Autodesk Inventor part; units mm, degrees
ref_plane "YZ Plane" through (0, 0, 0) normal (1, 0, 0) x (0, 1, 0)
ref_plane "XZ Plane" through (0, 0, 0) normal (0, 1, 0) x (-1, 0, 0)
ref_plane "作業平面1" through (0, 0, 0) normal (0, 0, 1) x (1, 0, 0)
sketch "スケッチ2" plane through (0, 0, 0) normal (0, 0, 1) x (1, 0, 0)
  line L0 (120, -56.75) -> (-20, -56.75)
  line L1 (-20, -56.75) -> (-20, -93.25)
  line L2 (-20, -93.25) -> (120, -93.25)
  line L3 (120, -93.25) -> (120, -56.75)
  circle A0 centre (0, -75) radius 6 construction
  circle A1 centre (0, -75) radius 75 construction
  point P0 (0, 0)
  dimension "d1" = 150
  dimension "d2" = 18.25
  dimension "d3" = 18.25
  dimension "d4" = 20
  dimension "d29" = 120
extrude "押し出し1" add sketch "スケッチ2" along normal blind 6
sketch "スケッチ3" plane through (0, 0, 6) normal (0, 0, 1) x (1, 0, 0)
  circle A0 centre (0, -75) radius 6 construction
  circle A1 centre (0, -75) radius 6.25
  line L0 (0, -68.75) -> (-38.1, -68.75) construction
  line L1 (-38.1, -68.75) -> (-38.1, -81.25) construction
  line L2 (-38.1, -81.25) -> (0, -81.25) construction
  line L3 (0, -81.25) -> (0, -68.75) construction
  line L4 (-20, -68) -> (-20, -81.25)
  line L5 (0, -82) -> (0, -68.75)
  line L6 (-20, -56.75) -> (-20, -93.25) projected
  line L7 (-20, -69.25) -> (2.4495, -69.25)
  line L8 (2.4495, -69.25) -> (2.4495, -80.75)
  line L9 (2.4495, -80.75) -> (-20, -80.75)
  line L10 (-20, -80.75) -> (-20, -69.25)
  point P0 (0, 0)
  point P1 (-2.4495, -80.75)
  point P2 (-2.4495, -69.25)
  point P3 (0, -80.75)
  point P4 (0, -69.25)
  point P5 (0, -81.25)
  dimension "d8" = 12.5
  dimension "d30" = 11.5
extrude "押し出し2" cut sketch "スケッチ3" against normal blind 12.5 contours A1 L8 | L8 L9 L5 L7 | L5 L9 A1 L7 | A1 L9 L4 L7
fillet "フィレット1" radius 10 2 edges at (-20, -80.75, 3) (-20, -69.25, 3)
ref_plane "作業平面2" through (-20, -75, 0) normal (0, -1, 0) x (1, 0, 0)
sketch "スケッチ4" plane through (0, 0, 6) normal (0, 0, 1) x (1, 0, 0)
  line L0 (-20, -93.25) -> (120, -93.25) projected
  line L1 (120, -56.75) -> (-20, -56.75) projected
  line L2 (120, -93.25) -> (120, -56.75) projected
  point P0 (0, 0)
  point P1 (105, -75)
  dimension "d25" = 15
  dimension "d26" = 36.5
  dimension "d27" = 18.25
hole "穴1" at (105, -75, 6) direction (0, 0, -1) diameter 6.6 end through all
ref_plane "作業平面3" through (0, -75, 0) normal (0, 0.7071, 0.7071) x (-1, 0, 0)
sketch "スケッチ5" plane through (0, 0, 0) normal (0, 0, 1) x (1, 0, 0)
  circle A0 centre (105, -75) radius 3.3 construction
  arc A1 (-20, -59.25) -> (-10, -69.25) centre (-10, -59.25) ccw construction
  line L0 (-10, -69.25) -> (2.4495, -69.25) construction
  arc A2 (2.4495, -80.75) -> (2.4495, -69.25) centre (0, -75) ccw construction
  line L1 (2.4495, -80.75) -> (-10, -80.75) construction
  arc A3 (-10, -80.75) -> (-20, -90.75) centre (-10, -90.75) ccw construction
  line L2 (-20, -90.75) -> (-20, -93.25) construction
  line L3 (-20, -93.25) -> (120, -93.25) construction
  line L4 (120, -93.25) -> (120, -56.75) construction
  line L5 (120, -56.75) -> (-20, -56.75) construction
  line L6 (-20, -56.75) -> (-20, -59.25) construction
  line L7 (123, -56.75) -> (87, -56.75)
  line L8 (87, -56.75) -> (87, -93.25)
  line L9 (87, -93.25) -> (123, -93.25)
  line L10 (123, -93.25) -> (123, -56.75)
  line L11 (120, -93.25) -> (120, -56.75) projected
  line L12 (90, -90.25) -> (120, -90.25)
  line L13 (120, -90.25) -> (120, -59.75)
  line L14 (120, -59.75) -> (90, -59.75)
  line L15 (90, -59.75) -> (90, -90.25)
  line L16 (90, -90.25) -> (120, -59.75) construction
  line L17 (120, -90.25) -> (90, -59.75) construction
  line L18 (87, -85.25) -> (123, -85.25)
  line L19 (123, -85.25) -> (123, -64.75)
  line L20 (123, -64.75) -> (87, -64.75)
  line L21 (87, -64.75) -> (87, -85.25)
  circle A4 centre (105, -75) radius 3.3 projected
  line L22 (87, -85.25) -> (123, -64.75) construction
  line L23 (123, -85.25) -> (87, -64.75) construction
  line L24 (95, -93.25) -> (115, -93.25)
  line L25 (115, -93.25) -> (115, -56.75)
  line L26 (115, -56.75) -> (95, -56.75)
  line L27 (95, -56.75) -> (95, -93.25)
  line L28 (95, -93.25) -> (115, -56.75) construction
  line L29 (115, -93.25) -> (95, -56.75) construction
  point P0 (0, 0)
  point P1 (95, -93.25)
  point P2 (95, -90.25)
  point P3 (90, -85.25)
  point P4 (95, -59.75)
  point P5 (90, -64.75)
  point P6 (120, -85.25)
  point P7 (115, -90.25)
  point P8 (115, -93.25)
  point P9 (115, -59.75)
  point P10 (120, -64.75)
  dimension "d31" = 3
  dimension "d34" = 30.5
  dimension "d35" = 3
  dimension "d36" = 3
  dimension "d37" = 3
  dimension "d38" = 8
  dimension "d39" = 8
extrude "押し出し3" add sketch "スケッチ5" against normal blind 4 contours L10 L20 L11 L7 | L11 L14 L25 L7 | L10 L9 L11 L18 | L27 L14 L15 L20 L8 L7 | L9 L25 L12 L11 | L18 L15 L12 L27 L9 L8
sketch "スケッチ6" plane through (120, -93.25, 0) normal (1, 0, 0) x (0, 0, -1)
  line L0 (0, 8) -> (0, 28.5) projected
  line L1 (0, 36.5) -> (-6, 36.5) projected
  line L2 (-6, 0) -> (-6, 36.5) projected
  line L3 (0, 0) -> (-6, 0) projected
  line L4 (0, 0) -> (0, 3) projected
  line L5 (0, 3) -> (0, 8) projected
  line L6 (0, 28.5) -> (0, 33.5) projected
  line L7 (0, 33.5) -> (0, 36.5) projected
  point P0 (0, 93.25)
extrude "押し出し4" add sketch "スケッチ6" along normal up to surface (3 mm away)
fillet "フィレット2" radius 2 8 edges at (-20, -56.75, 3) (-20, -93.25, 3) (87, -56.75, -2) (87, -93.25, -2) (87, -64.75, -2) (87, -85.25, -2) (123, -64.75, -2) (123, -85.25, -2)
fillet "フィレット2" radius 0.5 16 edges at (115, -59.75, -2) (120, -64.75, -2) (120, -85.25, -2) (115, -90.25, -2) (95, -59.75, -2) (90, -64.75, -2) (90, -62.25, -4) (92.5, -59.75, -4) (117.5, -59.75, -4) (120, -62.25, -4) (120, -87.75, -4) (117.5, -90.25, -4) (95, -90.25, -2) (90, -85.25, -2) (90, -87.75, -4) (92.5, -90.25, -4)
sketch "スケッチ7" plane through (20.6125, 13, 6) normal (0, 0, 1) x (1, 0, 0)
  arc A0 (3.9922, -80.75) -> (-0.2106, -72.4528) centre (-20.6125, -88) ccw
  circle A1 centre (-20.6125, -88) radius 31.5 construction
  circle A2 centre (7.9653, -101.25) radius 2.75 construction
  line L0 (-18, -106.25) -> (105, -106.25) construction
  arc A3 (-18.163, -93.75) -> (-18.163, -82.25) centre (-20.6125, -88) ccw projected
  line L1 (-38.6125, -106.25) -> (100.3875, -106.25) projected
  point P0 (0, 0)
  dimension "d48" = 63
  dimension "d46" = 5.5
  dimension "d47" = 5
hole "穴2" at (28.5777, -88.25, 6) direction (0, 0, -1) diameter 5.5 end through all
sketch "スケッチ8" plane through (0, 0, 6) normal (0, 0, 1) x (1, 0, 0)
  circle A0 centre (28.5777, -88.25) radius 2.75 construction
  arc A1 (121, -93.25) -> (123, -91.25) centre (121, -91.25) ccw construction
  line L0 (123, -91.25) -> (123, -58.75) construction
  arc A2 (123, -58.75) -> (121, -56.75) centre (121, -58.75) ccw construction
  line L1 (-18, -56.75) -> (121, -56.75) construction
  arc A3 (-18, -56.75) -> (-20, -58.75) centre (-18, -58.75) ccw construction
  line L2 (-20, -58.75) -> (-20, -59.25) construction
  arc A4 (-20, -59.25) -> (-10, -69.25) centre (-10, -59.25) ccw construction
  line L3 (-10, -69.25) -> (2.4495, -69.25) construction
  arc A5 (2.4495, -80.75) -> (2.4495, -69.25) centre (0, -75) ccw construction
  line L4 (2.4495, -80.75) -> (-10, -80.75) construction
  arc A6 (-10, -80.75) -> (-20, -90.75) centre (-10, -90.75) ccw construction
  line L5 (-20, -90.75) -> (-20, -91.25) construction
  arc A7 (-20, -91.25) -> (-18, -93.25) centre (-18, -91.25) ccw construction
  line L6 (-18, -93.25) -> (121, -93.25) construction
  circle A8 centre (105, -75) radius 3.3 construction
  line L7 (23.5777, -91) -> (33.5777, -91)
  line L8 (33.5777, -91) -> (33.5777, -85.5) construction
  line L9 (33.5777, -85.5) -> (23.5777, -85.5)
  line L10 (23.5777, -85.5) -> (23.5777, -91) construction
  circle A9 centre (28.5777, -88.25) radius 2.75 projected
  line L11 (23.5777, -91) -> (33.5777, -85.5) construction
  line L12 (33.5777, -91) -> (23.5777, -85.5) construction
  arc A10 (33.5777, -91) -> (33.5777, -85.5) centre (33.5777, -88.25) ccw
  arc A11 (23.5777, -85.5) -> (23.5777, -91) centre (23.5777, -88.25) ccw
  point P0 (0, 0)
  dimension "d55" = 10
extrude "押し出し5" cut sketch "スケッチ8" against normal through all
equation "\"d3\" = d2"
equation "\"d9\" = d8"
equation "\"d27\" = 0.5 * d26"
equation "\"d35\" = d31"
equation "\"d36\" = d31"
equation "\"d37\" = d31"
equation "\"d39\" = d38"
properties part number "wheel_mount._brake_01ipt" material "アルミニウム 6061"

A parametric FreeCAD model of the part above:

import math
import FreeCAD as App
import Part
import Sketcher

V = App.Vector


def edges_at(feature, points):
    """Names of the edges that pass closest to the given points."""
    edges = feature.Shape.Edges
    near = lambda p: min(range(len(edges)), key=lambda i: edges[i].distToShape(Part.Vertex(*p))[0])
    return sorted({f"Edge{near(p) + 1}" for p in points})

doc = App.newDocument("Part")
params = doc.addObject("Spreadsheet::Sheet", "Params")
for row, (alias, value) in enumerate([
    ("sketch1_height", "36.5 mm"),
    ("pad1_length", "6 mm"),
    ("sketch2_radius", "6.25 mm"),
    ("sketch2_height", "11.5 mm"),
    ("pocket1_length", "12.5 mm"),
    ("fillet_radius", "10 mm"),
    ("sketch3_diameter", "6.6 mm"),
    ("hole_diameter", "6.6 mm"),
    ("sketch4_width", "8 mm"),
    ("sketch4_width2", "3 mm"),
    ("pad2_length", "4 mm"),
    ("sketch5_height", "6 mm"),
    ("sketch5_width", "36.5 mm"),
    ("pad3_length", "3 mm"),
    ("fillet2_radius", "2 mm"),
    ("fillet3_radius", "0.5 mm"),
    ("sketch6_diameter", "5.5 mm"),
    ("hole2_diameter", "5.5 mm"),
    ("sketch7_width", "10 mm"),
    ("sketch7_radius", "2.75 mm"),
], start=1):
    params.set(f"A{row}", alias)
    params.set(f"B{row}", "=" + value)
    params.setAlias(f"B{row}", alias)

body = doc.addObject("PartDesign::Body", "Body")

# Sketch on XY plane
sketch1 = doc.addObject("Sketcher::SketchObject", "Sketch")
body.addObject(sketch1)
sketch1.AttachmentSupport = (doc.XY_Plane, [""])
sketch1.MapMode = "FlatFace"
sketch1.addGeometry(Part.LineSegment(V(120, -93.25, 0), V(120, -56.75, 0)), False)
sketch1.addGeometry(Part.LineSegment(V(120, -56.75, 0), V(-20, -56.75, 0)), False)
sketch1.addGeometry(Part.LineSegment(V(-20, -56.75, 0), V(-20, -93.25, 0)), False)
sketch1.addGeometry(Part.LineSegment(V(-20, -93.25, 0), V(120, -93.25, 0)), False)
sketch1.addConstraint(Sketcher.Constraint("Coincident", 0, 2, 1, 1))
sketch1.addConstraint(Sketcher.Constraint("Coincident", 1, 2, 2, 1))
sketch1.addConstraint(Sketcher.Constraint("Coincident", 2, 2, 3, 1))
sketch1.addConstraint(Sketcher.Constraint("Coincident", 3, 2, 0, 1))
sketch1.addConstraint(Sketcher.Constraint("Vertical", 0))
sketch1.addConstraint(Sketcher.Constraint("Horizontal", 1))
sketch1.addConstraint(Sketcher.Constraint("Vertical", 2))
sketch1.addConstraint(Sketcher.Constraint("Horizontal", 3))
sketch1.addConstraint(Sketcher.Constraint("DistanceX", -1, 1, 0, 2, 120.0))
sketch1.addConstraint(Sketcher.Constraint("DistanceX", 1, 2, -1, 1, 20.0))
sketch1.addConstraint(Sketcher.Constraint("DistanceY", 0, 1, 0, 2, 36.5))
sketch1.addConstraint(Sketcher.Constraint("DistanceY", 0, 2, -1, 1, 56.75))
sketch1.setExpression("Constraints[10]", "Params.sketch1_height")
pad1 = doc.addObject("PartDesign::Pad", "Pad")
body.addObject(pad1)
pad1.Profile = sketch1
pad1.setExpression("Length", "Params.pad1_length")

# Sketch on XY plane
sketch2 = doc.addObject("Sketcher::SketchObject", "Sketch001")
body.addObject(sketch2)
sketch2.AttachmentSupport = (doc.XY_Plane, [""])
sketch2.MapMode = "FlatFace"
sketch2.AttachmentOffset = App.Placement(V(0, 0, 6), App.Rotation())
sketch2.addGeometry(Part.ArcOfCircle(Part.Circle(V(0, -75, 0), V(0, 0, 1), 6.25), math.radians(-66.925995), math.radians(66.925995)), False)
sketch2.addGeometry(Part.LineSegment(V(2.4495, -69.25, 0), V(-20, -69.25, 0)), False)
sketch2.addGeometry(Part.LineSegment(V(-20, -69.25, 0), V(-20, -80.75, 0)), False)
sketch2.addGeometry(Part.LineSegment(V(-20, -80.75, 0), V(2.4495, -80.75, 0)), False)
sketch2.addConstraint(Sketcher.Constraint("Coincident", 0, 2, 1, 1))
sketch2.addConstraint(Sketcher.Constraint("Coincident", 1, 2, 2, 1))
sketch2.addConstraint(Sketcher.Constraint("Coincident", 2, 2, 3, 1))
sketch2.addConstraint(Sketcher.Constraint("Coincident", 3, 2, 0, 1))
sketch2.addConstraint(Sketcher.Constraint("Horizontal", 1))
sketch2.addConstraint(Sketcher.Constraint("Vertical", 2))
sketch2.addConstraint(Sketcher.Constraint("Horizontal", 3))
sketch2.addConstraint(Sketcher.Constraint("PointOnObject", 0, 3, -2))
sketch2.addConstraint(Sketcher.Constraint("Vertical", 0, 2, 3, 2))
sketch2.addConstraint(Sketcher.Constraint("Radius", 0, 6.25))
sketch2.addConstraint(Sketcher.Constraint("DistanceY", 2, 2, 2, 1, 11.5))
sketch2.addConstraint(Sketcher.Constraint("DistanceY", 0, 3, -1, 1, 75.0))
sketch2.addConstraint(Sketcher.Constraint("DistanceX", 1, 2, -1, 1, 20.0))
sketch2.setExpression("Constraints[9]", "Params.sketch2_radius")
sketch2.setExpression("Constraints[10]", "Params.sketch2_height")
pocket1 = doc.addObject("PartDesign::Pocket", "Pocket")
body.addObject(pocket1)
pocket1.Profile = sketch2
pocket1.setExpression("Length", "Params.pocket1_length")
doc.recompute()

fillet = doc.addObject("PartDesign::Fillet", "Fillet")
body.addObject(fillet)
fillet.Base = (pocket1, edges_at(pocket1, [(-20, -80.75, 3), (-20, -69.25, 3)]))
fillet.setExpression("Radius", "Params.fillet_radius")

# Sketch on XY plane
sketch3 = doc.addObject("Sketcher::SketchObject", "Sketch002")
body.addObject(sketch3)
sketch3.AttachmentSupport = (doc.XY_Plane, [""])
sketch3.MapMode = "FlatFace"
sketch3.AttachmentOffset = App.Placement(V(0, 0, 6), App.Rotation())
sketch3.addGeometry(Part.Circle(V(105, -75, 0), V(0, 0, 1), 3.3), False)
sketch3.addConstraint(Sketcher.Constraint("Diameter", 0, 6.6))
sketch3.addConstraint(Sketcher.Constraint("DistanceX", -1, 1, 0, 3, 105.0))
sketch3.addConstraint(Sketcher.Constraint("DistanceY", 0, 3, -1, 1, 75.0))
sketch3.setExpression("Constraints[0]", "Params.sketch3_diameter")
doc.recompute()
hole = doc.addObject("PartDesign::Hole", "Hole")
body.addObject(hole)
hole.Profile = sketch3
hole.ThreadType = "None"
hole.setExpression("Diameter", "Params.hole_diameter")
hole.DepthType = "ThroughAll"

# Sketch on XY plane
sketch4 = doc.addObject("Sketcher::SketchObject", "Sketch003")
body.addObject(sketch4)
sketch4.AttachmentSupport = (doc.XY_Plane, [""])
sketch4.MapMode = "FlatFace"
sketch4.addGeometry(Part.LineSegment(V(123, -64.75, 0), V(123, -56.75, 0)), False)
sketch4.addGeometry(Part.LineSegment(V(123, -56.75, 0), V(115, -56.75, 0)), False)
sketch4.addGeometry(Part.LineSegment(V(115, -56.75, 0), V(115, -59.75, 0)), False)
sketch4.addGeometry(Part.LineSegment(V(115, -59.75, 0), V(120, -59.75, 0)), False)
sketch4.addGeometry(Part.LineSegment(V(120, -59.75, 0), V(120, -64.75, 0)), False)
sketch4.addGeometry(Part.LineSegment(V(120, -64.75, 0), V(123, -64.75, 0)), False)
sketch4.addGeometry(Part.LineSegment(V(123, -93.25, 0), V(123, -85.25, 0)), False)
sketch4.addGeometry(Part.LineSegment(V(123, -85.25, 0), V(120, -85.25, 0)), False)
sketch4.addGeometry(Part.LineSegment(V(120, -85.25, 0), V(120, -90.25, 0)), False)
sketch4.addGeometry(Part.LineSegment(V(120, -90.25, 0), V(115, -90.25, 0)), False)
sketch4.addGeometry(Part.LineSegment(V(115, -90.25, 0), V(115, -93.25, 0)), False)
sketch4.addGeometry(Part.LineSegment(V(115, -93.25, 0), V(123, -93.25, 0)), False)
sketch4.addGeometry(Part.LineSegment(V(95, -59.75, 0), V(95, -56.75, 0)), False)
sketch4.addGeometry(Part.LineSegment(V(95, -56.75, 0), V(87, -56.75, 0)), False)
sketch4.addGeometry(Part.LineSegment(V(87, -56.75, 0), V(87, -64.75, 0)), False)
sketch4.addGeometry(Part.LineSegment(V(87, -64.75, 0), V(90, -64.75, 0)), False)
sketch4.addGeometry(Part.LineSegment(V(90, -64.75, 0), V(90, -59.75, 0)), False)
sketch4.addGeometry(Part.LineSegment(V(90, -59.75, 0), V(95, -59.75, 0)), False)
sketch4.addGeometry(Part.LineSegment(V(90, -85.25, 0), V(87, -85.25, 0)), False)
sketch4.addGeometry(Part.LineSegment(V(87, -85.25, 0), V(87, -93.25, 0)), False)
sketch4.addGeometry(Part.LineSegment(V(87, -93.25, 0), V(95, -93.25, 0)), False)
sketch4.addGeometry(Part.LineSegment(V(95, -93.25, 0), V(95, -90.25, 0)), False)
sketch4.addGeometry(Part.LineSegment(V(95, -90.25, 0), V(90, -90.25, 0)), False)
sketch4.addGeometry(Part.LineSegment(V(90, -90.25, 0), V(90, -85.25, 0)), False)
sketch4.addConstraint(Sketcher.Constraint("Coincident", 0, 2, 1, 1))
sketch4.addConstraint(Sketcher.Constraint("Coincident", 1, 2, 2, 1))
sketch4.addConstraint(Sketcher.Constraint("Coincident", 2, 2, 3, 1))
sketch4.addConstraint(Sketcher.Constraint("Coincident", 3, 2, 4, 1))
sketch4.addConstraint(Sketcher.Constraint("Coincident", 4, 2, 5, 1))
sketch4.addConstraint(Sketcher.Constraint("Coincident", 5, 2, 0, 1))
sketch4.addConstraint(Sketcher.Constraint("Coincident", 6, 2, 7, 1))
sketch4.addConstraint(Sketcher.Constraint("Coincident", 7, 2, 8, 1))
sketch4.addConstraint(Sketcher.Constraint("Coincident", 8, 2, 9, 1))
sketch4.addConstraint(Sketcher.Constraint("Coincident", 9, 2, 10, 1))
sketch4.addConstraint(Sketcher.Constraint("Coincident", 10, 2, 11, 1))
sketch4.addConstraint(Sketcher.Constraint("Coincident", 11, 2, 6, 1))
sketch4.addConstraint(Sketcher.Constraint("Coincident", 12, 2, 13, 1))
sketch4.addConstraint(Sketcher.Constraint("Coincident", 13, 2, 14, 1))
sketch4.addConstraint(Sketcher.Constraint("Coincident", 14, 2, 15, 1))
sketch4.addConstraint(Sketcher.Constraint("Coincident", 15, 2, 16, 1))
sketch4.addConstraint(Sketcher.Constraint("Coincident", 16, 2, 17, 1))
sketch4.addConstraint(Sketcher.Constraint("Coincident", 17, 2, 12, 1))
sketch4.addConstraint(Sketcher.Constraint("Coincident", 18, 2, 19, 1))
sketch4.addConstraint(Sketcher.Constraint("Coincident", 19, 2, 20, 1))
sketch4.addConstraint(Sketcher.Constraint("Coincident", 20, 2, 21, 1))
sketch4.addConstraint(Sketcher.Constraint("Coincident", 21, 2, 22, 1))
sketch4.addConstraint(Sketcher.Constraint("Coincident", 22, 2, 23, 1))
sketch4.addConstraint(Sketcher.Constraint("Coincident", 23, 2, 18, 1))
sketch4.addConstraint(Sketcher.Constraint("Vertical", 0))
sketch4.addConstraint(Sketcher.Constraint("Horizontal", 1))
sketch4.addConstraint(Sketcher.Constraint("Vertical", 2))
sketch4.addConstraint(Sketcher.Constraint("Horizontal", 3))
sketch4.addConstraint(Sketcher.Constraint("Vertical", 4))
sketch4.addConstraint(Sketcher.Constraint("Horizontal", 5))
sketch4.addConstraint(Sketcher.Constraint("Vertical", 6))
sketch4.addConstraint(Sketcher.Constraint("Horizontal", 7))
sketch4.addConstraint(Sketcher.Constraint("Vertical", 8))
sketch4.addConstraint(Sketcher.Constraint("Horizontal", 9))
sketch4.addConstraint(Sketcher.Constraint("Vertical", 10))
sketch4.addConstraint(Sketcher.Constraint("Horizontal", 11))
sketch4.addConstraint(Sketcher.Constraint("Vertical", 12))
sketch4.addConstraint(Sketcher.Constraint("Horizontal", 13))
sketch4.addConstraint(Sketcher.Constraint("Vertical", 14))
sketch4.addConstraint(Sketcher.Constraint("Horizontal", 15))
sketch4.addConstraint(Sketcher.Constraint("Vertical", 16))
sketch4.addConstraint(Sketcher.Constraint("Horizontal", 17))
sketch4.addConstraint(Sketcher.Constraint("Horizontal", 18))
sketch4.addConstraint(Sketcher.Constraint("Vertical", 19))
sketch4.addConstraint(Sketcher.Constraint("Horizontal", 20))
sketch4.addConstraint(Sketcher.Constraint("Vertical", 21))
sketch4.addConstraint(Sketcher.Constraint("Horizontal", 22))
sketch4.addConstraint(Sketcher.Constraint("Vertical", 23))
sketch4.addConstraint(Sketcher.Constraint("Horizontal", 1, 2, 12, 2))
sketch4.addConstraint(Sketcher.Constraint("Horizontal", 5, 2, 14, 2))
sketch4.addConstraint(Sketcher.Constraint("Horizontal", 3, 2, 16, 2))
sketch4.addConstraint(Sketcher.Constraint("Horizontal", 7, 2, 18, 2))
sketch4.addConstraint(Sketcher.Constraint("Horizontal", 11, 2, 19, 2))
sketch4.addConstraint(Sketcher.Constraint("Horizontal", 9, 2, 21, 2))
sketch4.addConstraint(Sketcher.Constraint("Vertical", 5, 2, 6, 2))
sketch4.addConstraint(Sketcher.Constraint("Vertical", 4, 2, 7, 2))
sketch4.addConstraint(Sketcher.Constraint("Vertical", 2, 2, 9, 2))
sketch4.addConstraint(Sketcher.Constraint("Vertical", 14, 2, 18, 2))
sketch4.addConstraint(Sketcher.Constraint("Vertical", 17, 2, 20, 2))
sketch4.addConstraint(Sketcher.Constraint("Vertical", 16, 2, 22, 2))
sketch4.addConstraint(Sketcher.Constraint("Equal", 11, 13))
sketch4.addConstraint(Sketcher.Constraint("Equal", 7, 15))
sketch4.addConstraint(Sketcher.Constraint("Equal", 20, 0))
sketch4.addConstraint(Sketcher.Constraint("Equal", 18, 2))
sketch4.addConstraint(Sketcher.Constraint("Equal", 0, 6))
sketch4.addConstraint(Sketcher.Constraint("Equal", 4, 8))
sketch4.addConstraint(Sketcher.Constraint("DistanceX", 1, 2, 1, 1, 8.0))
sketch4.addConstraint(Sketcher.Constraint("DistanceX", 5, 1, 5, 2, 3.0))
sketch4.addConstraint(Sketcher.Constraint("DistanceY", 8, 2, 3, 2, 30.5))
sketch4.addConstraint(Sketcher.Constraint("DistanceX", -1, 1, 0, 2, 123.0))
sketch4.addConstraint(Sketcher.Constraint("DistanceX", -1, 1, 12, 2, 95.0))
sketch4.addConstraint(Sketcher.Constraint("DistanceY", 0, 2, -1, 1, 56.75))
sketch4.setExpression("Constraints[66]", "Params.sketch4_width")
sketch4.setExpression("Constraints[67]", "Params.sketch4_width2")
pad2 = doc.addObject("PartDesign::Pad", "Pad001")
body.addObject(pad2)
pad2.Profile = sketch4
pad2.setExpression("Length", "Params.pad2_length")
pad2.Reversed = True

# Sketch on YZ plane
sketch5 = doc.addObject("Sketcher::SketchObject", "Sketch004")
body.addObject(sketch5)
sketch5.AttachmentSupport = (doc.YZ_Plane, [""])
sketch5.MapMode = "FlatFace"
sketch5.AttachmentOffset = App.Placement(V(0, 0, 120), App.Rotation())
sketch5.addGeometry(Part.LineSegment(V(-93.25, 0, 0), V(-56.75, 0, 0)), False)
sketch5.addGeometry(Part.LineSegment(V(-56.75, 0, 0), V(-56.75, 6, 0)), False)
sketch5.addGeometry(Part.LineSegment(V(-56.75, 6, 0), V(-93.25, 6, 0)), False)
sketch5.addGeometry(Part.LineSegment(V(-93.25, 6, 0), V(-93.25, 0, 0)), False)
sketch5.addConstraint(Sketcher.Constraint("Coincident", 0, 2, 1, 1))
sketch5.addConstraint(Sketcher.Constraint("Coincident", 1, 2, 2, 1))
sketch5.addConstraint(Sketcher.Constraint("Coincident", 2, 2, 3, 1))
sketch5.addConstraint(Sketcher.Constraint("Coincident", 3, 2, 0, 1))
sketch5.addConstraint(Sketcher.Constraint("Horizontal", 0))
sketch5.addConstraint(Sketcher.Constraint("Vertical", 1))
sketch5.addConstraint(Sketcher.Constraint("Horizontal", 2))
sketch5.addConstraint(Sketcher.Constraint("Vertical", 3))
sketch5.addConstraint(Sketcher.Constraint("PointOnObject", 0, 2, -1))
sketch5.addConstraint(Sketcher.Constraint("DistanceY", 1, 1, 1, 2, 6.0))
sketch5.addConstraint(Sketcher.Constraint("DistanceX", 0, 1, 0, 2, 36.5))
sketch5.addConstraint(Sketcher.Constraint("DistanceX", 0, 2, -1, 1, 56.75))
sketch5.setExpression("Constraints[9]", "Params.sketch5_height")
sketch5.setExpression("Constraints[10]", "Params.sketch5_width")
pad3 = doc.addObject("PartDesign::Pad", "Pad002")
body.addObject(pad3)
pad3.Profile = sketch5
pad3.setExpression("Length", "Params.pad3_length")
doc.recompute()

fillet2 = doc.addObject("PartDesign::Fillet", "Fillet001")
body.addObject(fillet2)
fillet2.Base = (pad3, edges_at(pad3, [
    (-20, -56.75, 3),
    (-20, -93.25, 3),
    (87, -56.75, -2),
    (87, -93.25, -2),
    (87, -64.75, -2),
    (87, -85.25, -2),
    (123, -64.75, -2),
    (123, -85.25, -2),
]))
fillet2.setExpression("Radius", "Params.fillet2_radius")
doc.recompute()

fillet3 = doc.addObject("PartDesign::Fillet", "Fillet002")
body.addObject(fillet3)
fillet3.Base = (fillet2, edges_at(fillet2, [
    (115, -59.75, -2),
    (120, -64.75, -2),
    (120, -85.25, -2),
    (115, -90.25, -2),
    (95, -59.75, -2),
    (90, -64.75, -2),
    (90, -62.25, -4),
    (92.5, -59.75, -4),
    (117.5, -59.75, -4),
    (120, -62.25, -4),
    (120, -87.75, -4),
    (117.5, -90.25, -4),
    (95, -90.25, -2),
    (90, -85.25, -2),
    (90, -87.75, -4),
    (92.5, -90.25, -4),
]))
fillet3.setExpression("Radius", "Params.fillet3_radius")

# Sketch on XY plane
sketch6 = doc.addObject("Sketcher::SketchObject", "Sketch005")
body.addObject(sketch6)
sketch6.AttachmentSupport = (doc.XY_Plane, [""])
sketch6.MapMode = "FlatFace"
sketch6.AttachmentOffset = App.Placement(V(0, 0, 6), App.Rotation())
sketch6.addGeometry(Part.Circle(V(28.5777, -88.25, 0), V(0, 0, 1), 2.75), False)
sketch6.addConstraint(Sketcher.Constraint("Diameter", 0, 5.5))
sketch6.addConstraint(Sketcher.Constraint("DistanceY", 0, 3, -1, 1, 88.25))
sketch6.addConstraint(Sketcher.Constraint("DistanceX", -1, 1, 0, 3, 28.5777))
sketch6.setExpression("Constraints[0]", "Params.sketch6_diameter")
doc.recompute()
hole2 = doc.addObject("PartDesign::Hole", "Hole001")
body.addObject(hole2)
hole2.Profile = sketch6
hole2.ThreadType = "None"
hole2.setExpression("Diameter", "Params.hole2_diameter")
hole2.DepthType = "ThroughAll"

# Sketch on XY plane
sketch7 = doc.addObject("Sketcher::SketchObject", "Sketch006")
body.addObject(sketch7)
sketch7.AttachmentSupport = (doc.XY_Plane, [""])
sketch7.MapMode = "FlatFace"
sketch7.AttachmentOffset = App.Placement(V(0, 0, 6), App.Rotation())
sketch7.addGeometry(Part.ArcOfCircle(Part.Circle(V(23.5777, -88.25, 0), V(0, 0, 1), 2.75), math.radians(90), math.radians(270)), False)
sketch7.addGeometry(Part.LineSegment(V(23.5777, -91, 0), V(33.5777, -91, 0)), False)
sketch7.addGeometry(Part.ArcOfCircle(Part.Circle(V(33.5777, -88.25, 0), V(0, 0, 1), 2.75), math.radians(-90), math.radians(90)), False)
sketch7.addGeometry(Part.LineSegment(V(33.5777, -85.5, 0), V(23.5777, -85.5, 0)), False)
sketch7.addConstraint(Sketcher.Constraint("Tangent", 0, 2, 1, 1))
sketch7.addConstraint(Sketcher.Constraint("Tangent", 1, 2, 2, 1))
sketch7.addConstraint(Sketcher.Constraint("Tangent", 2, 2, 3, 1))
sketch7.addConstraint(Sketcher.Constraint("Tangent", 3, 2, 0, 1))
sketch7.addConstraint(Sketcher.Constraint("Horizontal", 1))
sketch7.addConstraint(Sketcher.Constraint("Horizontal", 3))
sketch7.addConstraint(Sketcher.Constraint("DistanceX", 1, 1, 1, 2, 10.0))
sketch7.addConstraint(Sketcher.Constraint("Radius", 0, 2.75))
sketch7.addConstraint(Sketcher.Constraint("DistanceY", 0, 2, -1, 1, 91.0))
sketch7.addConstraint(Sketcher.Constraint("DistanceX", -1, 1, 0, 3, 23.5777))
sketch7.setExpression("Constraints[6]", "Params.sketch7_width")
sketch7.setExpression("Constraints[7]", "Params.sketch7_radius")
pocket2 = doc.addObject("PartDesign::Pocket", "Pocket001")
body.addObject(pocket2)
pocket2.Profile = sketch7
pocket2.Type = "ThroughAll"

doc.recompute()
